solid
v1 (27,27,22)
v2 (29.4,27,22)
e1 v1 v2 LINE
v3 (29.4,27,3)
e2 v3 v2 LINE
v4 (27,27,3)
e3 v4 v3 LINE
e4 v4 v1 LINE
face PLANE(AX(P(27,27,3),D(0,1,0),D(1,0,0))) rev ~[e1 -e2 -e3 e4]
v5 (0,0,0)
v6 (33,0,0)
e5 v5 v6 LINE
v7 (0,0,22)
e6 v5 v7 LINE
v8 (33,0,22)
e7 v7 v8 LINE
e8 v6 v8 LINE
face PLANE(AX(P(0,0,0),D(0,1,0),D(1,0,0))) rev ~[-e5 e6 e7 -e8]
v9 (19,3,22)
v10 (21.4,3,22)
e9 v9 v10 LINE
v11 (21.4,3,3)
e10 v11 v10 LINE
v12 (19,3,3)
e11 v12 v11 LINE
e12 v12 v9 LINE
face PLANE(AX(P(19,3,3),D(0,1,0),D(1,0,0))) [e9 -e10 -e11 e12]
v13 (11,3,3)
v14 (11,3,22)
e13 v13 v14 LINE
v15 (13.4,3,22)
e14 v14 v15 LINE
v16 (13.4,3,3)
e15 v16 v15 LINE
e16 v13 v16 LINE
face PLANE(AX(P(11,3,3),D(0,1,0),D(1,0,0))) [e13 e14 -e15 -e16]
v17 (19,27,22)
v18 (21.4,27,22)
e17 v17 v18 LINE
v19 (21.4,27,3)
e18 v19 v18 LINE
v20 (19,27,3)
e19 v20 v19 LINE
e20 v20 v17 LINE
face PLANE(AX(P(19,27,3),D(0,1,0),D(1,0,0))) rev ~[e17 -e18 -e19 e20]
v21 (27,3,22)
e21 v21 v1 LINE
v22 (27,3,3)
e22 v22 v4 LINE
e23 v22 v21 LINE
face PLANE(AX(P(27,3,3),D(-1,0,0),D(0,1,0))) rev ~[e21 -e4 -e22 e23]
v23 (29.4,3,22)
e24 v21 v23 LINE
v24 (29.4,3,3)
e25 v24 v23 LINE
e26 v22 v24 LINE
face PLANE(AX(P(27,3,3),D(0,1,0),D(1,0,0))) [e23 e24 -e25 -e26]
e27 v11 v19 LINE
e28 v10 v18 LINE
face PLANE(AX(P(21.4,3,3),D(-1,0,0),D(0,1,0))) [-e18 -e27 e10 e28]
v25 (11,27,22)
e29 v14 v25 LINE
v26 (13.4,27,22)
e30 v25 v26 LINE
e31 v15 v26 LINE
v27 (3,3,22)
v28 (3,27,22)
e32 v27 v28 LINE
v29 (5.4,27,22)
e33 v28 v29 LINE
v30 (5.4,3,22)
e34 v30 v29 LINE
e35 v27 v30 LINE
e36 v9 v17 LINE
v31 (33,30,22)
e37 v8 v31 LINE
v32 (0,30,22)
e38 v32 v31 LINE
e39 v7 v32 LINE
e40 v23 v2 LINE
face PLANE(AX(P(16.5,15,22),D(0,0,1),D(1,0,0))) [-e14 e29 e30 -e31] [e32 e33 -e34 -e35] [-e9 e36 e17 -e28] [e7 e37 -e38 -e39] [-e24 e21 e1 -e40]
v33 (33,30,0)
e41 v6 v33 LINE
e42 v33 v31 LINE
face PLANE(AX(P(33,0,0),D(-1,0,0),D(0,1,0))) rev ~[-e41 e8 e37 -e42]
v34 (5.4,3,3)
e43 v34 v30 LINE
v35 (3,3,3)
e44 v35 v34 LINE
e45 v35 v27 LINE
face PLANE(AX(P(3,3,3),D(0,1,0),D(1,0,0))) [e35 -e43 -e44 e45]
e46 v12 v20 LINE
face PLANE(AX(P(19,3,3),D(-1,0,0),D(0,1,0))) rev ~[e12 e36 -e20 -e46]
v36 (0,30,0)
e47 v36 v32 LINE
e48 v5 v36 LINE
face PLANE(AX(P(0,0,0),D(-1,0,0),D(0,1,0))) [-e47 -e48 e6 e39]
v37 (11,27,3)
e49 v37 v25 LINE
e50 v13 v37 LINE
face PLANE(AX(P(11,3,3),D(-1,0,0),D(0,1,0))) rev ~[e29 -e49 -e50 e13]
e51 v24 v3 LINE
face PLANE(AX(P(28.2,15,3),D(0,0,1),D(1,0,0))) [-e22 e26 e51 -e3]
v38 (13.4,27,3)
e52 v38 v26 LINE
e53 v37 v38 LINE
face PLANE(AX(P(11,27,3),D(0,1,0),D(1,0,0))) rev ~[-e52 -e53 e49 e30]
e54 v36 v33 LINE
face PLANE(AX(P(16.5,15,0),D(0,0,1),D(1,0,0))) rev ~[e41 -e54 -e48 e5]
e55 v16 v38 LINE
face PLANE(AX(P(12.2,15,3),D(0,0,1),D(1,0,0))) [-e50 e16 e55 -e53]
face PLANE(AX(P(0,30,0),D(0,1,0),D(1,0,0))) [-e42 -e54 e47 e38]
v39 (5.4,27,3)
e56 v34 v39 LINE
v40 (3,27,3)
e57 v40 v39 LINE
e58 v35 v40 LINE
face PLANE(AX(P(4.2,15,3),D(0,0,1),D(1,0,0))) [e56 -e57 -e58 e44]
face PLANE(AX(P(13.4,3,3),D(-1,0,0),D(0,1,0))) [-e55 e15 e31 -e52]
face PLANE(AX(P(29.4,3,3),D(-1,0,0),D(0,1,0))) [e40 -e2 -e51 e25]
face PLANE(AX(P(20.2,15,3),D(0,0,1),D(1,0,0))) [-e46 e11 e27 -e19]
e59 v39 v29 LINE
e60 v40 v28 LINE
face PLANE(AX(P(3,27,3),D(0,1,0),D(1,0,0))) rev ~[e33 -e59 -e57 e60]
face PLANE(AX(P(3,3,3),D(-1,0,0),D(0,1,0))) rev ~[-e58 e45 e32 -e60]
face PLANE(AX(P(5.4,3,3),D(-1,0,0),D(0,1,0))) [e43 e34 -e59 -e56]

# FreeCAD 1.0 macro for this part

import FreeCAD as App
import Part
import Sketcher
from FreeCAD import Vector
Q = App.Units.Quantity

doc = App.newDocument("Part")
params = doc.addObject("Spreadsheet::Sheet", "Params")
for row, (alias, value) in enumerate([
    ("sketch1_height", "24 mm"),
    ("sketch1_width", "2.4 mm"),
    ("pad1_length", "19 mm"),
    ("sketch2_height", "24 mm"),
    ("sketch2_width", "2.4 mm"),
    ("pad2_length", "19 mm"),
    ("sketch3_height", "24 mm"),
    ("sketch3_width", "2.4 mm"),
    ("pad3_length", "19 mm"),
    ("sketch4_height", "24 mm"),
    ("sketch4_width", "2.4 mm"),
    ("pad4_length", "19 mm"),
    ("sketch5_width", "33 mm"),
    ("sketch5_height", "30 mm"),
    ("pad5_length", "22 mm"),
], start=1):
    params.set(f"A{row}", alias)
    params.set(f"B{row}", "=" + value)
    params.setAlias(f"B{row}", alias)

body = doc.addObject("PartDesign::Body", "Body")

# Sketch on XY plane
sketch1 = body.newObject("Sketcher::SketchObject", "Sketch")
sketch1.AttachmentSupport = (doc.getObject("XY_Plane"), [""])
sketch1.MapMode = "FlatFace"
sketch1.AttachmentOffset = App.Placement(Vector(0, 0, 3), App.Rotation())
sketch1.addGeometry([
    Part.LineSegment(Vector(19, 27, 0), Vector(19, 3, 0)),
    Part.LineSegment(Vector(19, 3, 0), Vector(21.4, 3, 0)),
    Part.LineSegment(Vector(21.4, 3, 0), Vector(21.4, 27, 0)),
    Part.LineSegment(Vector(21.4, 27, 0), Vector(19, 27, 0)),
], False)
sketch1.addConstraint([
    Sketcher.Constraint("Coincident", 0, 2, 1, 1),
    Sketcher.Constraint("Coincident", 1, 2, 2, 1),
    Sketcher.Constraint("Coincident", 2, 2, 3, 1),
    Sketcher.Constraint("Coincident", 3, 2, 0, 1),
    Sketcher.Constraint("Vertical", 0),
    Sketcher.Constraint("Horizontal", 1),
    Sketcher.Constraint("Vertical", 2),
    Sketcher.Constraint("Horizontal", 3),
    Sketcher.Constraint("DistanceY", 0, 2, 0, 1, Q("24 mm")),
    Sketcher.Constraint("DistanceX", 1, 1, 1, 2, Q("2.4 mm")),
    Sketcher.Constraint("DistanceX", -1, 1, 0, 2, Q("19 mm")),
    Sketcher.Constraint("DistanceY", -1, 1, 0, 2, Q("3 mm")),
])
sketch1.setExpression("Constraints[8]", "Params.sketch1_height")
sketch1.setExpression("Constraints[9]", "Params.sketch1_width")
pad1 = body.newObject("PartDesign::Pad", "Pad")
pad1.Profile = sketch1
pad1.setExpression("Length", "Params.pad1_length")
body2 = doc.addObject("PartDesign::Body", "Body001")

# Sketch on XY plane
sketch2 = body2.newObject("Sketcher::SketchObject", "Sketch001")
sketch2.AttachmentSupport = (doc.getObject("XY_Plane001"), [""])
sketch2.MapMode = "FlatFace"
sketch2.AttachmentOffset = App.Placement(Vector(0, 0, 3), App.Rotation())
sketch2.addGeometry([
    Part.LineSegment(Vector(11, 27, 0), Vector(11, 3, 0)),
    Part.LineSegment(Vector(11, 3, 0), Vector(13.4, 3, 0)),
    Part.LineSegment(Vector(13.4, 3, 0), Vector(13.4, 27, 0)),
    Part.LineSegment(Vector(13.4, 27, 0), Vector(11, 27, 0)),
], False)
sketch2.addConstraint([
    Sketcher.Constraint("Coincident", 0, 2, 1, 1),
    Sketcher.Constraint("Coincident", 1, 2, 2, 1),
    Sketcher.Constraint("Coincident", 2, 2, 3, 1),
    Sketcher.Constraint("Coincident", 3, 2, 0, 1),
    Sketcher.Constraint("Vertical", 0),
    Sketcher.Constraint("Horizontal", 1),
    Sketcher.Constraint("Vertical", 2),
    Sketcher.Constraint("Horizontal", 3),
    Sketcher.Constraint("DistanceY", 0, 2, 0, 1, Q("24 mm")),
    Sketcher.Constraint("DistanceX", 1, 1, 1, 2, Q("2.4 mm")),
    Sketcher.Constraint("DistanceX", -1, 1, 0, 2, Q("11 mm")),
    Sketcher.Constraint("DistanceY", -1, 1, 0, 2, Q("3 mm")),
])
sketch2.setExpression("Constraints[8]", "Params.sketch2_height")
sketch2.setExpression("Constraints[9]", "Params.sketch2_width")
pad2 = body2.newObject("PartDesign::Pad", "Pad001")
pad2.Profile = sketch2
pad2.setExpression("Length", "Params.pad2_length")
body3 = doc.addObject("PartDesign::Body", "Body002")

# Sketch on XY plane
sketch3 = body3.newObject("Sketcher::SketchObject", "Sketch002")
sketch3.AttachmentSupport = (doc.getObject("XY_Plane002"), [""])
sketch3.MapMode = "FlatFace"
sketch3.AttachmentOffset = App.Placement(Vector(0, 0, 3), App.Rotation())
sketch3.addGeometry([
    Part.LineSegment(Vector(3, 27, 0), Vector(3, 3, 0)),
    Part.LineSegment(Vector(3, 3, 0), Vector(5.4, 3, 0)),
    Part.LineSegment(Vector(5.4, 3, 0), Vector(5.4, 27, 0)),
    Part.LineSegment(Vector(5.4, 27, 0), Vector(3, 27, 0)),
], False)
sketch3.addConstraint([
    Sketcher.Constraint("Coincident", 0, 2, 1, 1),
    Sketcher.Constraint("Coincident", 1, 2, 2, 1),
    Sketcher.Constraint("Coincident", 2, 2, 3, 1),
    Sketcher.Constraint("Coincident", 3, 2, 0, 1),
    Sketcher.Constraint("Vertical", 0),
    Sketcher.Constraint("Horizontal", 1),
    Sketcher.Constraint("Vertical", 2),
    Sketcher.Constraint("Horizontal", 3),
    Sketcher.Constraint("DistanceY", 0, 2, 0, 1, Q("24 mm")),
    Sketcher.Constraint("DistanceX", 1, 1, 1, 2, Q("2.4 mm")),
    Sketcher.Constraint("DistanceX", -1, 1, 0, 2, Q("3 mm")),
    Sketcher.Constraint("DistanceY", -1, 1, 0, 2, Q("3 mm")),
])
sketch3.setExpression("Constraints[8]", "Params.sketch3_height")
sketch3.setExpression("Constraints[9]", "Params.sketch3_width")
pad3 = body3.newObject("PartDesign::Pad", "Pad002")
pad3.Profile = sketch3
pad3.setExpression("Length", "Params.pad3_length")
body4 = doc.addObject("PartDesign::Body", "Body003")
body4.AllowCompound = True

# Sketch on XY plane
sketch4 = body4.newObject("Sketcher::SketchObject", "Sketch003")
sketch4.AttachmentSupport = (doc.getObject("XY_Plane003"), [""])
sketch4.MapMode = "FlatFace"
sketch4.AttachmentOffset = App.Placement(Vector(0, 0, 3), App.Rotation())
sketch4.addGeometry([
    Part.LineSegment(Vector(27, 27, 0), Vector(27, 3, 0)),
    Part.LineSegment(Vector(27, 3, 0), Vector(29.4, 3, 0)),
    Part.LineSegment(Vector(29.4, 3, 0), Vector(29.4, 27, 0)),
    Part.LineSegment(Vector(29.4, 27, 0), Vector(27, 27, 0)),
], False)
sketch4.addConstraint([
    Sketcher.Constraint("Coincident", 0, 2, 1, 1),
    Sketcher.Constraint("Coincident", 1, 2, 2, 1),
    Sketcher.Constraint("Coincident", 2, 2, 3, 1),
    Sketcher.Constraint("Coincident", 3, 2, 0, 1),
    Sketcher.Constraint("Vertical", 0),
    Sketcher.Constraint("Horizontal", 1),
    Sketcher.Constraint("Vertical", 2),
    Sketcher.Constraint("Horizontal", 3),
    Sketcher.Constraint("DistanceY", 0, 2, 0, 1, Q("24 mm")),
    Sketcher.Constraint("DistanceX", 1, 1, 1, 2, Q("2.4 mm")),
    Sketcher.Constraint("DistanceX", -1, 1, 0, 2, Q("27 mm")),
    Sketcher.Constraint("DistanceY", -1, 1, 0, 2, Q("3 mm")),
])
sketch4.setExpression("Constraints[8]", "Params.sketch4_height")
sketch4.setExpression("Constraints[9]", "Params.sketch4_width")
pad4 = body4.newObject("PartDesign::Pad", "Pad003")
pad4.Profile = sketch4
pad4.setExpression("Length", "Params.pad4_length")
doc.recompute()

boolean = body4.newObject("PartDesign::Boolean", "Boolean")
boolean.Type = "Fuse"
boolean.addObjects([body])
doc.recompute()

boolean2 = body4.newObject("PartDesign::Boolean", "Boolean001")
boolean2.Type = "Fuse"
boolean2.addObjects([body2])
doc.recompute()

boolean3 = body4.newObject("PartDesign::Boolean", "Boolean002")
boolean3.Type = "Fuse"
boolean3.addObjects([body3])
body5 = doc.addObject("PartDesign::Body", "Body004")

# Sketch on XY plane
sketch5 = body5.newObject("Sketcher::SketchObject", "Sketch004")
sketch5.AttachmentSupport = (doc.getObject("XY_Plane004"), [""])
sketch5.MapMode = "FlatFace"
sketch5.addGeometry([
    Part.LineSegment(Vector(0, 30, 0), Vector(0, 0, 0)),
    Part.LineSegment(Vector(0, 0, 0), Vector(33, 0, 0)),
    Part.LineSegment(Vector(33, 0, 0), Vector(33, 30, 0)),
    Part.LineSegment(Vector(33, 30, 0), Vector(0, 30, 0)),
], False)
sketch5.addConstraint([
    Sketcher.Constraint("Coincident", 0, 2, 1, 1),
    Sketcher.Constraint("Coincident", 1, 2, 2, 1),
    Sketcher.Constraint("Coincident", 2, 2, 3, 1),
    Sketcher.Constraint("Coincident", 3, 2, 0, 1),
    Sketcher.Constraint("Vertical", 0),
    Sketcher.Constraint("Horizontal", 1),
    Sketcher.Constraint("Vertical", 2),
    Sketcher.Constraint("Horizontal", 3),
    Sketcher.Constraint("Coincident", 0, 2, -1, 1),
    Sketcher.Constraint("DistanceX", 1, 1, 1, 2, Q("33 mm")),
    Sketcher.Constraint("DistanceY", 0, 2, 0, 1, Q("30 mm")),
])
sketch5.setExpression("Constraints[9]", "Params.sketch5_width")
sketch5.setExpression("Constraints[10]", "Params.sketch5_height")
pad5 = body5.newObject("PartDesign::Pad", "Pad004")
pad5.Profile = sketch5
pad5.setExpression("Length", "Params.pad5_length")
doc.recompute()

boolean4 = body5.newObject("PartDesign::Boolean", "Boolean003")
boolean4.Type = "Cut"
boolean4.addObjects([body4])

doc.recompute()
